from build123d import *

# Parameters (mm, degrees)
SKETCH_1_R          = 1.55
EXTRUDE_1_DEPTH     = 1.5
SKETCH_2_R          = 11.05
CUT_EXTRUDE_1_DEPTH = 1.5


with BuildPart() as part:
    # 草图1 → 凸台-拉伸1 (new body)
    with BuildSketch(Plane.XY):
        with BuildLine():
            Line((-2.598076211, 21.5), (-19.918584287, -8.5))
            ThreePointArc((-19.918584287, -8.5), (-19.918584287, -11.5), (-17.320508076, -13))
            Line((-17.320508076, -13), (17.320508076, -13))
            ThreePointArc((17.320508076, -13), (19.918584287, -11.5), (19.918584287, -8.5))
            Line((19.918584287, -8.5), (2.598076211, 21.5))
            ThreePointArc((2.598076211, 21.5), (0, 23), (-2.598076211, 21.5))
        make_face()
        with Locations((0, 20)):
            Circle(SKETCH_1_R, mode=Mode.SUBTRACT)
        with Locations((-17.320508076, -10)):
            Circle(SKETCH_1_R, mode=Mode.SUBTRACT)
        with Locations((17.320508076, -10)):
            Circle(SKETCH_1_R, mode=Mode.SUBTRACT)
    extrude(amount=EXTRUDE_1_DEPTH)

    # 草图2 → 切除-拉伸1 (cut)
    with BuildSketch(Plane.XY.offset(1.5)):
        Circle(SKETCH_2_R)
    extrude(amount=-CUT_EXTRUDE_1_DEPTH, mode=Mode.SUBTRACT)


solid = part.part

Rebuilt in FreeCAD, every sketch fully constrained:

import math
import FreeCAD as App
import Part
import Sketcher
from FreeCAD import Vector
Q = App.Units.Quantity

doc = App.newDocument("Part")
params = doc.addObject("Spreadsheet::Sheet", "Params")
for row, (alias, value) in enumerate([
    ("sketch1_radius", "3 mm"),
    ("sketch1_diameter", "3.1 mm"),
    ("pad1_length", "1.5 mm"),
    ("sketch2_diameter", "22.1 mm"),
    ("pocket1_length", "1.5 mm"),
], start=1):
    params.set(f"A{row}", alias)
    params.set(f"B{row}", "=" + value)
    params.setAlias(f"B{row}", alias)

body = doc.addObject("PartDesign::Body", "Body")

# Sketch on XY plane
sketch1 = body.newObject("Sketcher::SketchObject", "Sketch")
sketch1.AttachmentSupport = (doc.getObject("XY_Plane"), [""])
sketch1.MapMode = "FlatFace"
sketch1.addGeometry([
    Part.LineSegment(Vector(-2.598076, 21.5, 0), Vector(-19.918584, -8.5, 0)),  # 0
    Part.ArcOfCircle(Part.Circle(Vector(-17.320508, -10, 0), Vector(0, 0, 1), 3), math.radians(150), math.radians(270)),  # 1
    Part.LineSegment(Vector(-17.320508, -13, 0), Vector(17.320508, -13, 0)),  # 2
    Part.ArcOfCircle(Part.Circle(Vector(17.320508, -10, 0), Vector(0, 0, 1), 3), math.radians(-90), math.radians(30)),  # 3
    Part.LineSegment(Vector(19.918584, -8.5, 0), Vector(2.598076, 21.5, 0)),  # 4
    Part.ArcOfCircle(Part.Circle(Vector(0, 20, 0), Vector(0, 0, 1), 3), math.radians(30), math.radians(150)),  # 5
    Part.Circle(Vector(-17.320508, -10, 0), Vector(0, 0, 1), 1.55),  # 6
    Part.Circle(Vector(17.320508, -10, 0), Vector(0, 0, 1), 1.55),  # 7
    Part.Circle(Vector(0, 20, 0), Vector(0, 0, 1), 1.55),  # 8
], False)
sketch1.addConstraint([
    Sketcher.Constraint("Tangent", 0, 2, 1, 1),
    Sketcher.Constraint("Tangent", 1, 2, 2, 1),
    Sketcher.Constraint("Tangent", 2, 2, 3, 1),
    Sketcher.Constraint("Tangent", 3, 2, 4, 1),
    Sketcher.Constraint("Tangent", 4, 2, 5, 1),
    Sketcher.Constraint("Tangent", 5, 2, 0, 1),
    Sketcher.Constraint("Horizontal", 2),
    Sketcher.Constraint("Coincident", 6, 3, 1, 3),
    Sketcher.Constraint("Coincident", 7, 3, 3, 3),
    Sketcher.Constraint("Coincident", 8, 3, 5, 3),
    Sketcher.Constraint("Equal", 1, 3),
    Sketcher.Constraint("Equal", 3, 5),
    Sketcher.Constraint("Equal", 6, 7),
    Sketcher.Constraint("Equal", 7, 8),
    Sketcher.Constraint("Symmetric", 0, 2, 3, 2, -2),
    Sketcher.Constraint("Radius", 1, 3.0),
    Sketcher.Constraint("Diameter", 6, 3.1),
    Sketcher.Constraint("Angle", 0, Q("-120 deg")),
    Sketcher.Constraint("DistanceY", 1, 3, -1, 1, 10.0),
    Sketcher.Constraint("DistanceY", -1, 1, 5, 3, 20.0),
])
sketch1.setExpression("Constraints[15]", "Params.sketch1_radius")
sketch1.setExpression("Constraints[16]", "Params.sketch1_diameter")
pad1 = body.newObject("PartDesign::Pad", "Pad")
pad1.Profile = sketch1
pad1.setExpression("Length", "Params.pad1_length")

# Sketch on XY plane
sketch2 = body.newObject("Sketcher::SketchObject", "Sketch001")
sketch2.AttachmentSupport = (doc.getObject("XY_Plane"), [""])
sketch2.MapMode = "FlatFace"
sketch2.AttachmentOffset = App.Placement(Vector(0, 0, 1.5), App.Rotation())
sketch2.addGeometry(Part.Circle(Vector(0, 0, 0), Vector(0, 0, 1), 11.05), False)
sketch2.addConstraint([
    Sketcher.Constraint("Coincident", 0, 3, -1, 1),
    Sketcher.Constraint("Diameter", 0, 22.1),
])
sketch2.setExpression("Constraints[1]", "Params.sketch2_diameter")
pocket1 = body.newObject("PartDesign::Pocket", "Pocket")
pocket1.Profile = sketch2
pocket1.setExpression("Length", "Params.pocket1_length")

doc.recompute()
